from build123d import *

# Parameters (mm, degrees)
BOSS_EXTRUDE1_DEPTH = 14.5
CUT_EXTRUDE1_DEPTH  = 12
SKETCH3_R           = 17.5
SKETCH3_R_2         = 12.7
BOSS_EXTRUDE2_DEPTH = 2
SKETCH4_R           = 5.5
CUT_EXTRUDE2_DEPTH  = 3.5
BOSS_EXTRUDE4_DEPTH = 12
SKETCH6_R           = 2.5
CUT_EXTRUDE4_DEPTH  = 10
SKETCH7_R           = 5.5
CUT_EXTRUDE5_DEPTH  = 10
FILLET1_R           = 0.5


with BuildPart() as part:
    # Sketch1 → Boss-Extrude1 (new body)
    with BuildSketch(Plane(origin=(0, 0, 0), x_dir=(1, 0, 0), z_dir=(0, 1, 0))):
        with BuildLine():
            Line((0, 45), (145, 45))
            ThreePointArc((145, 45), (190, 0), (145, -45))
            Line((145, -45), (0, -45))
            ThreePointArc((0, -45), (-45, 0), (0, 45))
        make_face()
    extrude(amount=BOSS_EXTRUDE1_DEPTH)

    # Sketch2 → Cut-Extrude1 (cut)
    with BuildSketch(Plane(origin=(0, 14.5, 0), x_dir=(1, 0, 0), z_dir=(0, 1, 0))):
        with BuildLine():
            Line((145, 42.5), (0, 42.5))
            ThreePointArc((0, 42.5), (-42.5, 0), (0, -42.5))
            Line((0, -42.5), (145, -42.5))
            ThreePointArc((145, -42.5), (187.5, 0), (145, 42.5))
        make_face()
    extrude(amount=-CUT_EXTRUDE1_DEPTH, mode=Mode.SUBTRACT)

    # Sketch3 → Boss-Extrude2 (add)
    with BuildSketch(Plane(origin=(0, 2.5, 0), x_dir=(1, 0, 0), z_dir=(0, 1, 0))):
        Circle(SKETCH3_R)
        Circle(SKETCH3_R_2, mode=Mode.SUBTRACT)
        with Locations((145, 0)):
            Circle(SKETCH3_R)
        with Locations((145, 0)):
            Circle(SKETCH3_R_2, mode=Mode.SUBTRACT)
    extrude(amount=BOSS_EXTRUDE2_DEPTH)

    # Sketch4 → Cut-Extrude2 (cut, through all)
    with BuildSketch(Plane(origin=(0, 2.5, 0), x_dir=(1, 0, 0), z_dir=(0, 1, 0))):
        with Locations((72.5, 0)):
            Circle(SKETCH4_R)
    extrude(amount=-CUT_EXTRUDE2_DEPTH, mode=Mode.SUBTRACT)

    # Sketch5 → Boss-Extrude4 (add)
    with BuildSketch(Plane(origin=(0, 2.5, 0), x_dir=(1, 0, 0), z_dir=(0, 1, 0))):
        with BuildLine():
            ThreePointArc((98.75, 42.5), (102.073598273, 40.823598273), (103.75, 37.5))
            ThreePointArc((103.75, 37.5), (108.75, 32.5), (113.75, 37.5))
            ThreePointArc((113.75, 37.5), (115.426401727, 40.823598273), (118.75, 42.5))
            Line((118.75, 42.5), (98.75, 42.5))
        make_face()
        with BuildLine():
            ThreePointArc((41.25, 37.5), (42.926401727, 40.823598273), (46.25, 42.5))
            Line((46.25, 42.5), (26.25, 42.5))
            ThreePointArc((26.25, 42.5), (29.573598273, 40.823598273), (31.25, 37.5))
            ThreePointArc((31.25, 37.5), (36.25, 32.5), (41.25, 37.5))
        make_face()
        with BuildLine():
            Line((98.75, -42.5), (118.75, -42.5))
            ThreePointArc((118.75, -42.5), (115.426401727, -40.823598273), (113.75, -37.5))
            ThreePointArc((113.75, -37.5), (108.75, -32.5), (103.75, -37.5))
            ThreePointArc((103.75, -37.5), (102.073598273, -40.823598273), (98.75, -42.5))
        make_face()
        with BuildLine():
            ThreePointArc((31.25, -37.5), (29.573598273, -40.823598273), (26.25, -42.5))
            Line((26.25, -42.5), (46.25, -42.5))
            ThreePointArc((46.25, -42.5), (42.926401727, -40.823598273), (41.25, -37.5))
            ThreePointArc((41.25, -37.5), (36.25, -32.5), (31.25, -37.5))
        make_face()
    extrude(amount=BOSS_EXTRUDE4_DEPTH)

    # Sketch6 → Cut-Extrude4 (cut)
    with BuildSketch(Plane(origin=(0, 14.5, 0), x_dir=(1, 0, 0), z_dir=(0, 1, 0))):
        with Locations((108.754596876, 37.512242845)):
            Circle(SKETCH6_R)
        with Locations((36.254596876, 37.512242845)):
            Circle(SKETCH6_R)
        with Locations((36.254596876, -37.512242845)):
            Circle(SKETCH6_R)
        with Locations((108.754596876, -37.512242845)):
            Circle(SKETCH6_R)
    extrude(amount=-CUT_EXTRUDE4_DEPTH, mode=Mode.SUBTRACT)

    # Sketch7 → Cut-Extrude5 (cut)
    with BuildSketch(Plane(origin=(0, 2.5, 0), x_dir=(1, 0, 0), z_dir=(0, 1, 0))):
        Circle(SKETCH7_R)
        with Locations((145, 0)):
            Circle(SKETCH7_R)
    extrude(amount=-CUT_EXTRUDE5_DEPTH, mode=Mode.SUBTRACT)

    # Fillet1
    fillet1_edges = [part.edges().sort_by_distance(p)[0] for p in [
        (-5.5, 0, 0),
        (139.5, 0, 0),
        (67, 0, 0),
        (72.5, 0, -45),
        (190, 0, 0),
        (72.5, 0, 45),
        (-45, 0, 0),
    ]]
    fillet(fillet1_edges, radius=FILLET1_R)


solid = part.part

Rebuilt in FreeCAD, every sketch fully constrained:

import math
import FreeCAD as App
import Part
import Sketcher


def edges_at(feature, points):
    """Names of the edges that pass closest to the given points."""
    edges = feature.Shape.Edges
    near = lambda p: min(range(len(edges)), key=lambda i: edges[i].distToShape(Part.Vertex(*p))[0])
    return sorted({f"Edge{near(p) + 1}" for p in points})

doc = App.newDocument("Part")
body = doc.addObject("PartDesign::Body", "Body")

sketch1 = doc.addObject("Sketcher::SketchObject", "Sketch")
body.addObject(sketch1)
sketch1.AttachmentSupport = (doc.XZ_Plane, [""])
sketch1.MapMode = "FlatFace"
sketch1.addGeometry([
    Part.LineSegment(App.Vector(145, -45, 0), App.Vector(0, -45, 0)),
    Part.ArcOfCircle(Part.Circle(App.Vector(0, 0, 0), App.Vector(0, 0, 1), 45), math.radians(90), math.radians(270)),
    Part.LineSegment(App.Vector(0, 45, 0), App.Vector(145, 45, 0)),
    Part.ArcOfCircle(Part.Circle(App.Vector(145, 0, 0), App.Vector(0, 0, 1), 45), math.radians(-90), math.radians(90)),
], False)
sketch1.addConstraint([
    Sketcher.Constraint("Tangent", 0, 2, 1, 2),
    Sketcher.Constraint("Tangent", 1, 1, 2, 1),
    Sketcher.Constraint("Tangent", 2, 2, 3, 2),
    Sketcher.Constraint("Tangent", 3, 1, 0, 1),
    Sketcher.Constraint("Horizontal", 0),
    Sketcher.Constraint("Horizontal", 2),
    Sketcher.Constraint("Coincident", 1, 3, -1, 1),
    Sketcher.Constraint("Radius", 1, 45.0),
    Sketcher.Constraint("DistanceX", 0, 2, 0, 1, 145.0),
])
pad1 = doc.addObject("PartDesign::Pad", "Pad")
body.addObject(pad1)
pad1.Profile = sketch1
pad1.Length = 14.5
pad1.Reversed = True

sketch2 = doc.addObject("Sketcher::SketchObject", "Sketch001")
body.addObject(sketch2)
sketch2.AttachmentSupport = (doc.XZ_Plane, [""])
sketch2.MapMode = "FlatFace"
sketch2.AttachmentOffset = App.Placement(App.Vector(0, 0, -14.5), App.Rotation())
sketch2.addGeometry([
    Part.LineSegment(App.Vector(145, -42, 0), App.Vector(0, -42, 0)),
    Part.ArcOfCircle(Part.Circle(App.Vector(0, 0, 0), App.Vector(0, 0, 1), 42), math.radians(90), math.radians(270)),
    Part.LineSegment(App.Vector(0, 42, 0), App.Vector(145, 42, 0)),
    Part.ArcOfCircle(Part.Circle(App.Vector(145, 0, 0), App.Vector(0, 0, 1), 42), math.radians(-90), math.radians(90)),
], False)
sketch2.addConstraint([
    Sketcher.Constraint("Tangent", 0, 2, 1, 2),
    Sketcher.Constraint("Tangent", 1, 1, 2, 1),
    Sketcher.Constraint("Tangent", 2, 2, 3, 2),
    Sketcher.Constraint("Tangent", 3, 1, 0, 1),
    Sketcher.Constraint("Horizontal", 0),
    Sketcher.Constraint("Horizontal", 2),
    Sketcher.Constraint("Coincident", 1, 3, -1, 1),
    Sketcher.Constraint("Radius", 1, 42.5),
    Sketcher.Constraint("DistanceX", 0, 2, 0, 1, 145.0),
])
pocket1 = doc.addObject("PartDesign::Pocket", "Pocket")
body.addObject(pocket1)
pocket1.Profile = sketch2
pocket1.Length = 12
pocket1.Reversed = True

sketch3 = doc.addObject("Sketcher::SketchObject", "Sketch002")
body.addObject(sketch3)
sketch3.AttachmentSupport = (doc.XZ_Plane, [""])
sketch3.MapMode = "FlatFace"
sketch3.AttachmentOffset = App.Placement(App.Vector(0, 0, -2.5), App.Rotation())
sketch3.addGeometry([
    Part.Circle(App.Vector(0, 0, 0), App.Vector(0, 0, 1), 18),
    Part.Circle(App.Vector(0, 0, 0), App.Vector(0, 0, 1), 13),
    Part.Circle(App.Vector(145, 0, 0), App.Vector(0, 0, 1), 18),
    Part.Circle(App.Vector(145, 0, 0), App.Vector(0, 0, 1), 13),
], False)
sketch3.addConstraint([
    Sketcher.Constraint("Coincident", 0, 3, -1, 1),
    Sketcher.Constraint("Coincident", 1, 3, -1, 1),
    Sketcher.Constraint("Coincident", 3, 3, 2, 3),
    Sketcher.Constraint("Equal", 0, 2),
    Sketcher.Constraint("Equal", 1, 3),
    Sketcher.Constraint("PointOnObject", 2, 3, -1),
    Sketcher.Constraint("Diameter", 0, 35.0),
    Sketcher.Constraint("Diameter", 1, 25.4),
    Sketcher.Constraint("DistanceX", -1, 1, 2, 3, 145.0),
])
pad2 = doc.addObject("PartDesign::Pad", "Pad001")
body.addObject(pad2)
pad2.Profile = sketch3
pad2.Length = 2
pad2.Reversed = True

sketch4 = doc.addObject("Sketcher::SketchObject", "Sketch003")
body.addObject(sketch4)
sketch4.AttachmentSupport = (doc.XZ_Plane, [""])
sketch4.MapMode = "FlatFace"
sketch4.AttachmentOffset = App.Placement(App.Vector(0, 0, -2.5), App.Rotation())
sketch4.addGeometry(Part.Circle(App.Vector(72, 0, 0), App.Vector(0, 0, 1), 6), False)
sketch4.addConstraint([
    Sketcher.Constraint("PointOnObject", 0, 3, -1),
    Sketcher.Constraint("Diameter", 0, 11.0),
    Sketcher.Constraint("DistanceX", -1, 1, 0, 3, 72.5),
])
pocket2 = doc.addObject("PartDesign::Pocket", "Pocket001")
body.addObject(pocket2)
pocket2.Profile = sketch4
pocket2.Type = "ThroughAll"
pocket2.Reversed = True

sketch5 = doc.addObject("Sketcher::SketchObject", "Sketch004")
body.addObject(sketch5)
sketch5.AttachmentSupport = (doc.XZ_Plane, [""])
sketch5.MapMode = "FlatFace"
sketch5.AttachmentOffset = App.Placement(App.Vector(0, 0, -2.5), App.Rotation())
sketch5.addGeometry([
    Part.ArcOfCircle(Part.Circle(App.Vector(98, -37, 0), App.Vector(0, 0, 1), 6), math.radians(-81), math.radians(-9)),
    Part.ArcOfCircle(Part.Circle(App.Vector(109, -38, 0), App.Vector(0, 0, 1), 5), math.radians(0), math.radians(180)),
    Part.ArcOfCircle(Part.Circle(App.Vector(120, -37, 0), App.Vector(0, 0, 1), 6), math.radians(-171), math.radians(-99)),
    Part.LineSegment(App.Vector(119, -42, 0), App.Vector(99, -42, 0)),
    Part.ArcOfCircle(Part.Circle(App.Vector(47, -37, 0), App.Vector(0, 0, 1), 6), math.radians(-171), math.radians(-99)),
    Part.LineSegment(App.Vector(46, -42, 0), App.Vector(26, -42, 0)),
    Part.ArcOfCircle(Part.Circle(App.Vector(25, -37, 0), App.Vector(0, 0, 1), 6), math.radians(-81), math.radians(-9)),
    Part.ArcOfCircle(Part.Circle(App.Vector(36, -38, 0), App.Vector(0, 0, 1), 5), math.radians(0), math.radians(180)),
    Part.LineSegment(App.Vector(99, 42, 0), App.Vector(119, 42, 0)),
    Part.ArcOfCircle(Part.Circle(App.Vector(120, 37, 0), App.Vector(0, 0, 1), 6), math.radians(99), math.radians(171)),
    Part.ArcOfCircle(Part.Circle(App.Vector(109, 38, 0), App.Vector(0, 0, 1), 5), math.radians(180), math.radians(360)),
    Part.ArcOfCircle(Part.Circle(App.Vector(98, 37, 0), App.Vector(0, 0, 1), 6), math.radians(9), math.radians(81)),
    Part.ArcOfCircle(Part.Circle(App.Vector(25, 37, 0), App.Vector(0, 0, 1), 6), math.radians(9), math.radians(81)),
    Part.LineSegment(App.Vector(26, 42, 0), App.Vector(46, 42, 0)),
    Part.ArcOfCircle(Part.Circle(App.Vector(47, 37, 0), App.Vector(0, 0, 1), 6), math.radians(99), math.radians(171)),
    Part.ArcOfCircle(Part.Circle(App.Vector(36, 38, 0), App.Vector(0, 0, 1), 5), math.radians(180), math.radians(360)),
], False)
sketch5.addConstraint([
    Sketcher.Constraint("Coincident", 0, 2, 1, 2),
    Sketcher.Constraint("Coincident", 1, 1, 2, 1),
    Sketcher.Constraint("Coincident", 2, 2, 3, 1),
    Sketcher.Constraint("Coincident", 3, 2, 0, 1),
    Sketcher.Constraint("Coincident", 4, 2, 5, 1),
    Sketcher.Constraint("Coincident", 5, 2, 6, 1),
    Sketcher.Constraint("Coincident", 6, 2, 7, 2),
    Sketcher.Constraint("Coincident", 7, 1, 4, 1),
    Sketcher.Constraint("Coincident", 8, 2, 9, 1),
    Sketcher.Constraint("Coincident", 9, 2, 10, 2),
    Sketcher.Constraint("Coincident", 10, 1, 11, 1),
    Sketcher.Constraint("Coincident", 11, 2, 8, 1),
    Sketcher.Constraint("Coincident", 12, 2, 13, 1),
    Sketcher.Constraint("Coincident", 13, 2, 14, 1),
    Sketcher.Constraint("Coincident", 14, 2, 15, 2),
    Sketcher.Constraint("Coincident", 15, 1, 12, 1),
    Sketcher.Constraint("Horizontal", 3),
    Sketcher.Constraint("Horizontal", 5),
    Sketcher.Constraint("Horizontal", 8),
    Sketcher.Constraint("Horizontal", 13),
    Sketcher.Constraint("Equal", 0, 2),
    Sketcher.Constraint("Equal", 2, 4),
    Sketcher.Constraint("Equal", 4, 6),
    Sketcher.Constraint("Equal", 1, 7),
    Sketcher.Constraint("Equal", 6, 9),
    Sketcher.Constraint("Equal", 7, 10),
    Sketcher.Constraint("Equal", 9, 11),
    Sketcher.Constraint("Equal", 11, 12),
    Sketcher.Constraint("Equal", 12, 14),
    Sketcher.Constraint("Equal", 10, 15),
    Sketcher.Constraint("Symmetric", 2, 3, 9, 3, -1),
    Sketcher.Constraint("Symmetric", 1, 3, 10, 3, -1),
    Sketcher.Constraint("Symmetric", 0, 3, 11, 3, -1),
    Sketcher.Constraint("Symmetric", 6, 3, 12, 3, -1),
    Sketcher.Constraint("Symmetric", 4, 3, 14, 3, -1),
    Sketcher.Constraint("Symmetric", 7, 3, 15, 3, -1),
    Sketcher.Constraint("Horizontal", 0, 3, 2, 3),
    Sketcher.Constraint("Horizontal", 2, 3, 4, 3),
    Sketcher.Constraint("Horizontal", 4, 3, 6, 3),
    Sketcher.Constraint("Horizontal", 1, 3, 7, 3),
    Sketcher.Constraint("Horizontal", 7, 3, 0, 2),
    Sketcher.Constraint("Horizontal", 0, 2, 1, 1),
    Sketcher.Constraint("Horizontal", 3, 2, 4, 2),
    Sketcher.Constraint("Horizontal", 1, 1, 6, 2),
    Sketcher.Constraint("Horizontal", 6, 2, 7, 1),
    Sketcher.Constraint("Horizontal", 11, 2, 12, 2),
    Sketcher.Constraint("Vertical", 2, 2, 8, 2),
    Sketcher.Constraint("Radius", 1, 5.0),
    Sketcher.Constraint("DistanceX", 3, 2, 3, 1, 20.0),
    Sketcher.Constraint("DistanceY", 1, 3, 10, 3, 75.0),
    Sketcher.Constraint("DistanceY", 2, 2, 1, 1, 5.0),
    Sketcher.Constraint("DistanceX", 4, 3, 2, 3, 72.5),
    Sketcher.Constraint("DistanceX", -1, 1, 1, 3, 108.75),
    Sketcher.Constraint("Radius", 0, 5.948359),
])
pad3 = doc.addObject("PartDesign::Pad", "Pad002")
body.addObject(pad3)
pad3.Profile = sketch5
pad3.Length = 12
pad3.Reversed = True

sketch6 = doc.addObject("Sketcher::SketchObject", "Sketch005")
body.addObject(sketch6)
sketch6.AttachmentSupport = (doc.XZ_Plane, [""])
sketch6.MapMode = "FlatFace"
sketch6.AttachmentOffset = App.Placement(App.Vector(0, 0, -14.5), App.Rotation())
sketch6.addGeometry([
    Part.Circle(App.Vector(108.8, -37.5, 0), App.Vector(0, 0, 1), 2.5),
    Part.Circle(App.Vector(36.3, -37.5, 0), App.Vector(0, 0, 1), 2.5),
    Part.Circle(App.Vector(36.3, 37.5, 0), App.Vector(0, 0, 1), 2.5),
    Part.Circle(App.Vector(108.8, 37.5, 0), App.Vector(0, 0, 1), 2.5),
], False)
sketch6.addConstraint([
    Sketcher.Constraint("Equal", 0, 1),
    Sketcher.Constraint("Equal", 1, 2),
    Sketcher.Constraint("Equal", 2, 3),
    Sketcher.Constraint("Symmetric", 1, 3, 2, 3, -1),
    Sketcher.Constraint("Symmetric", 0, 3, 3, 3, -1),
    Sketcher.Constraint("Horizontal", 0, 3, 1, 3),
    Sketcher.Constraint("Diameter", 0, 5.0),
    Sketcher.Constraint("DistanceX", 1, 3, 0, 3, 72.5),
    Sketcher.Constraint("DistanceX", -1, 1, 0, 3, 108.754597),
    Sketcher.Constraint("DistanceY", 0, 3, -1, 1, 37.512243),
])
pocket3 = doc.addObject("PartDesign::Pocket", "Pocket002")
body.addObject(pocket3)
pocket3.Profile = sketch6
pocket3.Length = 10
pocket3.Reversed = True

sketch7 = doc.addObject("Sketcher::SketchObject", "Sketch006")
body.addObject(sketch7)
sketch7.AttachmentSupport = (doc.XZ_Plane, [""])
sketch7.MapMode = "FlatFace"
sketch7.AttachmentOffset = App.Placement(App.Vector(0, 0, -2.5), App.Rotation())
sketch7.addGeometry([
    Part.Circle(App.Vector(0, 0, 0), App.Vector(0, 0, 1), 6),
    Part.Circle(App.Vector(145, 0, 0), App.Vector(0, 0, 1), 6),
], False)
sketch7.addConstraint([
    Sketcher.Constraint("Coincident", 0, 3, -1, 1),
    Sketcher.Constraint("Equal", 0, 1),
    Sketcher.Constraint("PointOnObject", 1, 3, -1),
    Sketcher.Constraint("Diameter", 0, 11.0),
    Sketcher.Constraint("DistanceX", -1, 1, 1, 3, 145.0),
])
pocket4 = doc.addObject("PartDesign::Pocket", "Pocket003")
body.addObject(pocket4)
pocket4.Profile = sketch7
pocket4.Length = 10
pocket4.Reversed = True
doc.recompute()

fillet = doc.addObject("PartDesign::Fillet", "Fillet")
body.addObject(fillet)
fillet.Base = (pocket4, edges_at(pocket4, [
    (-5.5, 0, 0),
    (139.5, 0, 0),
    (67, 0, 0),
    (72.5, 0, -45),
    (190, 0, 0),
    (72.5, 0, 45),
    (-45, 0, 0),
]))
fillet.Radius = 0.5

doc.recompute()
